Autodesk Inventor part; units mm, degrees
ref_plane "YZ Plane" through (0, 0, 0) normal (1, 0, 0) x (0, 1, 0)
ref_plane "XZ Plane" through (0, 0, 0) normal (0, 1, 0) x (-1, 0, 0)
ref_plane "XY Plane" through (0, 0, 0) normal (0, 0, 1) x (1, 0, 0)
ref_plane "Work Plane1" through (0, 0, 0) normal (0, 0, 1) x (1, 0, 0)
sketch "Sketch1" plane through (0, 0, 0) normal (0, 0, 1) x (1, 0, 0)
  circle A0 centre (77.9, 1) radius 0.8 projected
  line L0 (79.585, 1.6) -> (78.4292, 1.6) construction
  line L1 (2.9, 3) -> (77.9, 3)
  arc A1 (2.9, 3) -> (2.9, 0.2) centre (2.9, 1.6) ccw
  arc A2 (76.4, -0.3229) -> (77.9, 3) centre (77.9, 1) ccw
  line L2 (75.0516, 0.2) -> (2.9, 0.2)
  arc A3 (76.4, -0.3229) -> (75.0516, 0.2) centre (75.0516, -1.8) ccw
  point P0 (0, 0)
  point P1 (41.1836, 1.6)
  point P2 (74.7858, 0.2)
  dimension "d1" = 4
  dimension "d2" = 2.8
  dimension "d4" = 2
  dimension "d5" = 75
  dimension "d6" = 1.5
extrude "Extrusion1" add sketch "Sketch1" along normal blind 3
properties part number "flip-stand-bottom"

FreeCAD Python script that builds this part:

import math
import FreeCAD as App
import Part
import Sketcher

doc = App.newDocument("Part")
body = doc.addObject("PartDesign::Body", "Body")

sketch1 = doc.addObject("Sketcher::SketchObject", "Sketch")
body.addObject(sketch1)
sketch1.AttachmentSupport = (doc.XY_Plane, [""])
sketch1.MapMode = "FlatFace"
sketch1.addGeometry([
    Part.LineSegment(App.Vector(77.9, 3, 0), App.Vector(2.9, 3, 0)),
    Part.ArcOfCircle(Part.Circle(App.Vector(2.9, 1.6, 0), App.Vector(0, 0, 1), 1.4), math.radians(90), math.radians(270)),
    Part.LineSegment(App.Vector(2.9, 0.2, 0), App.Vector(75.0516, 0.2, 0)),
    Part.ArcOfCircle(Part.Circle(App.Vector(75.0516, -1.8, 0), App.Vector(0, 0, 1), 2.000002), math.radians(47.607989), math.radians(90)),
    Part.ArcOfCircle(Part.Circle(App.Vector(77.9, 1, 0), App.Vector(0, 0, 1), 2.000016), math.radians(-138.589855), math.radians(90)),
    Part.Circle(App.Vector(77.9, 1, 0), App.Vector(0, 0, 1), 0.8),
], False)
sketch1.addConstraint([
    Sketcher.Constraint("Tangent", 0, 2, 1, 1),
    Sketcher.Constraint("Tangent", 1, 2, 2, 1),
    Sketcher.Constraint("Tangent", 2, 2, 3, 2),
    Sketcher.Constraint("Coincident", 3, 1, 4, 1),
    Sketcher.Constraint("Tangent", 4, 2, 0, 1),
    Sketcher.Constraint("Horizontal", 0),
    Sketcher.Constraint("Horizontal", 2),
    Sketcher.Constraint("Coincident", 5, 3, 4, 3),
    Sketcher.Constraint("Equal", 3, 4),
    Sketcher.Constraint("Radius", 3, 2.0),
    Sketcher.Constraint("Radius", 1, 1.4),
    Sketcher.Constraint("DistanceX", 0, 2, 0, 1, 75.0),
    Sketcher.Constraint("Diameter", 5, 1.6),
    Sketcher.Constraint("DistanceX", 3, 1, 4, 3, 1.5),
    Sketcher.Constraint("DistanceY", -1, 1, 4, 3, 1.0),
    Sketcher.Constraint("DistanceX", -1, 1, 1, 3, 2.9),
])
pad1 = doc.addObject("PartDesign::Pad", "Pad")
body.addObject(pad1)
pad1.Profile = sketch1
pad1.Length = 3

doc.recompute()
